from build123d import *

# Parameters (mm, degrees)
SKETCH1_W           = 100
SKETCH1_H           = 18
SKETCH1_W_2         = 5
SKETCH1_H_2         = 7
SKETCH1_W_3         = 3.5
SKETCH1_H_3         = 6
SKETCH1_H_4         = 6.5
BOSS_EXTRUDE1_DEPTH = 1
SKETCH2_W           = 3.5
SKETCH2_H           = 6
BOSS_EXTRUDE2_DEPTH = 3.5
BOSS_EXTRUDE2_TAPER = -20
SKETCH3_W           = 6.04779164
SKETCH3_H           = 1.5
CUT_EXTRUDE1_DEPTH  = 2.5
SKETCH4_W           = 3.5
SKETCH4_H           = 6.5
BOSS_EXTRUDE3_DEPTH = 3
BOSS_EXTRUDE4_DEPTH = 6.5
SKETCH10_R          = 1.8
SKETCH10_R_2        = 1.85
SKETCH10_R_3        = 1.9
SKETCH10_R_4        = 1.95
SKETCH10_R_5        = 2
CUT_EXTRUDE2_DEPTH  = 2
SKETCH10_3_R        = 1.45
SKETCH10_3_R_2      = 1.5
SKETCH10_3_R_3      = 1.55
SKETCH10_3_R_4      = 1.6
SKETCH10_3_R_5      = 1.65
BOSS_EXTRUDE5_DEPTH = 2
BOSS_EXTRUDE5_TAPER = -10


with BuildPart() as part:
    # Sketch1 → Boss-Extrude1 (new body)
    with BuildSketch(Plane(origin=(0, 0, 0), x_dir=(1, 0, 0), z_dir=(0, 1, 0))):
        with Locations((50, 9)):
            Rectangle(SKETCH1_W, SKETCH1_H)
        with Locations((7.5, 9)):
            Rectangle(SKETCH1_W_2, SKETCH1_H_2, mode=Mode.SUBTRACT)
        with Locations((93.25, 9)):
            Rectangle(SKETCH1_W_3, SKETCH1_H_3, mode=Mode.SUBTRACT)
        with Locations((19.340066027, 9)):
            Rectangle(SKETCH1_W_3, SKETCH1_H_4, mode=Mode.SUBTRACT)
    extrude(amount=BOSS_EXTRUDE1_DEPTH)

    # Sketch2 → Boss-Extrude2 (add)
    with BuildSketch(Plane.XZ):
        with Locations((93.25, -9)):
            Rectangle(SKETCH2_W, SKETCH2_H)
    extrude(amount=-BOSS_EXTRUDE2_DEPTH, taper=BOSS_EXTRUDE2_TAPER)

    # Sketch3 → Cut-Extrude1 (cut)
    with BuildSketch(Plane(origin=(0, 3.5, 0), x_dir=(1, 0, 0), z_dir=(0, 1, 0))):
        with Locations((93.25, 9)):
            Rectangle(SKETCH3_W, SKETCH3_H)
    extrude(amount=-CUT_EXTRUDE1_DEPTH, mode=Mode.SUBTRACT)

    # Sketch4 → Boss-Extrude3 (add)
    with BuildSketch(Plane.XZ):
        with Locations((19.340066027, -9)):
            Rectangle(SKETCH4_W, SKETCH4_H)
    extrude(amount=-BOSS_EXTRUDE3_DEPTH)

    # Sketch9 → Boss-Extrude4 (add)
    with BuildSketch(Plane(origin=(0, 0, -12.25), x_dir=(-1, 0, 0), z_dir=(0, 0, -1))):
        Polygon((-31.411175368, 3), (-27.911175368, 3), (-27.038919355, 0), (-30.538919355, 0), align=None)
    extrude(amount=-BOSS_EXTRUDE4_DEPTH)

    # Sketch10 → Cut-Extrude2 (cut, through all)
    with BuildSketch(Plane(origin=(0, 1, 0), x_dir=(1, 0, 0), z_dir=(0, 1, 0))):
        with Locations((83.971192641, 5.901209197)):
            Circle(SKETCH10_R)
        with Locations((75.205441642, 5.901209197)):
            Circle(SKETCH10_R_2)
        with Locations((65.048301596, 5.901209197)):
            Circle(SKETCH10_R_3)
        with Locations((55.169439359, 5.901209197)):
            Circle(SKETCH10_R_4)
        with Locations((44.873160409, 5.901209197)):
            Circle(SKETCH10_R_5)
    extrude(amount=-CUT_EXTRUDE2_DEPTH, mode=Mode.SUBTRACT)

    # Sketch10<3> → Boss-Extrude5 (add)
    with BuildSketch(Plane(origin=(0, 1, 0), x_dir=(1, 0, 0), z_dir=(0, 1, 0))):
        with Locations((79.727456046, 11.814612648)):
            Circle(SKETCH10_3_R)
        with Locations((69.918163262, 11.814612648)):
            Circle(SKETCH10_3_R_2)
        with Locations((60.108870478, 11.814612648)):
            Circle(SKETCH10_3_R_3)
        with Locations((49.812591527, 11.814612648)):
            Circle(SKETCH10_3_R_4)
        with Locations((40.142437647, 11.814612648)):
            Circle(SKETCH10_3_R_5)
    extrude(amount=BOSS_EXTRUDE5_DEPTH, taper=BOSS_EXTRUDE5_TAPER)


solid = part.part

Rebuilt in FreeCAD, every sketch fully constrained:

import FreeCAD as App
import Part
import Sketcher
from FreeCAD import Vector
Q = App.Units.Quantity


def add_polygon(sketch, points):
    """Adds a closed chain of lines whose ends are joined by coincident constraints."""
    first, n = sketch.GeometryCount, len(points)
    for a, b in zip(points, points[1:] + points[:1]):
        sketch.addGeometry(Part.LineSegment(App.Vector(*a, 0), App.Vector(*b, 0)), False)
    for i in range(n):
        sketch.addConstraint(Sketcher.Constraint("Coincident", first + i, 2, first + (i + 1) % n, 1))

doc = App.newDocument("Part")
params = doc.addObject("Spreadsheet::Sheet", "Params")
for row, (alias, value) in enumerate([
    ("sketch1_width", "100 mm"),
    ("sketch1_width2", "5 mm"),
    ("sketch1_height", "18 mm"),
    ("sketch1_height2", "7 mm"),
    ("sketch1_height3", "6 mm"),
    ("pad1_length", "1 mm"),
    ("sketch2_height", "6 mm"),
    ("sketch2_width", "3.5 mm"),
    ("pad2_length", "3.5 mm"),
    ("pad2_taper", "20 deg"),
    ("sketch3_height", "1.5 mm"),
    ("pocket1_length", "2.5 mm"),
    ("sketch4_width", "3.5 mm"),
    ("sketch4_height", "6.5 mm"),
    ("pad3_length", "3 mm"),
    ("sketch5_width", "3.5 mm"),
    ("pad4_length", "6.5 mm"),
    ("sketch6_diameter", "4 mm"),
    ("sketch6_diameter2", "3.6 mm"),
    ("sketch6_diameter3", "3.7 mm"),
    ("sketch6_diameter4", "3.8 mm"),
    ("sketch6_diameter5", "3.9 mm"),
    ("sketch7_diameter", "3 mm"),
    ("sketch7_diameter2", "2.9 mm"),
    ("sketch7_diameter3", "3.1 mm"),
    ("sketch7_diameter4", "3.2 mm"),
    ("sketch7_diameter5", "3.3 mm"),
    ("pad5_length", "2 mm"),
    ("pad5_taper", "10 deg"),
], start=1):
    params.set(f"A{row}", alias)
    params.set(f"B{row}", "=" + value)
    params.setAlias(f"B{row}", alias)

body = doc.addObject("PartDesign::Body", "Body")

sketch1 = body.newObject("Sketcher::SketchObject", "Sketch")
sketch1.AttachmentSupport = (doc.getObject("XZ_Plane"), [""])
sketch1.MapMode = "FlatFace"
add_polygon(sketch1, [(0, -18), (0, 0), (100, 0), (100, -18)])
add_polygon(sketch1, [(10, -5.5), (5, -5.5), (5, -12.5), (10, -12.5)])
add_polygon(sketch1, [(21.090066, -5.75), (17.590066, -5.75), (17.590066, -12.25), (21.090066, -12.25)])
add_polygon(sketch1, [(95, -6), (91.5, -6), (91.5, -12), (95, -12)])
sketch1.addConstraint(Sketcher.Constraint("Vertical", 0))
sketch1.addConstraint(Sketcher.Constraint("Horizontal", 1))
sketch1.addConstraint(Sketcher.Constraint("Vertical", 2))
sketch1.addConstraint(Sketcher.Constraint("Horizontal", 3))
sketch1.addConstraint(Sketcher.Constraint("Horizontal", 4))
sketch1.addConstraint(Sketcher.Constraint("Vertical", 5))
sketch1.addConstraint(Sketcher.Constraint("Horizontal", 6))
sketch1.addConstraint(Sketcher.Constraint("Vertical", 7))
sketch1.addConstraint(Sketcher.Constraint("Horizontal", 8))
sketch1.addConstraint(Sketcher.Constraint("Vertical", 9))
sketch1.addConstraint(Sketcher.Constraint("Horizontal", 10))
sketch1.addConstraint(Sketcher.Constraint("Vertical", 11))
sketch1.addConstraint(Sketcher.Constraint("Horizontal", 12))
sketch1.addConstraint(Sketcher.Constraint("Vertical", 13))
sketch1.addConstraint(Sketcher.Constraint("Horizontal", 14))
sketch1.addConstraint(Sketcher.Constraint("Vertical", 15))
sketch1.addConstraint(Sketcher.Constraint("Coincident", 0, 2, -1, 1))
sketch1.addConstraint(Sketcher.Constraint("Equal", 10, 12))
sketch1.addConstraint(Sketcher.Constraint("DistanceX", 1, 1, 1, 2, Q("100 mm")))
sketch1.addConstraint(Sketcher.Constraint("DistanceX", 4, 2, 4, 1, Q("5 mm")))
sketch1.addConstraint(Sketcher.Constraint("DistanceY", 0, 1, 0, 2, Q("18 mm")))
sketch1.addConstraint(Sketcher.Constraint("DistanceY", 5, 2, 5, 1, Q("7 mm")))
sketch1.addConstraint(Sketcher.Constraint("DistanceY", 13, 2, 13, 1, Q("6 mm")))
sketch1.addConstraint(Sketcher.Constraint("DistanceX", 8, 2, 8, 1, Q("3.5 mm")))
sketch1.addConstraint(Sketcher.Constraint("DistanceY", 9, 2, 9, 1, Q("6.5 mm")))
sketch1.addConstraint(Sketcher.Constraint("DistanceX", -1, 1, 4, 2, Q("5 mm")))
sketch1.addConstraint(Sketcher.Constraint("DistanceY", 12, 2, -1, 1, Q("6 mm")))
sketch1.addConstraint(Sketcher.Constraint("DistanceX", -1, 1, 14, 2, Q("95 mm")))
sketch1.addConstraint(Sketcher.Constraint("DistanceY", 4, 2, -1, 1, Q("5.5 mm")))
sketch1.addConstraint(Sketcher.Constraint("DistanceY", 8, 2, -1, 1, Q("5.75 mm")))
sketch1.addConstraint(Sketcher.Constraint("DistanceX", -1, 1, 8, 2, Q("17.590066 mm")))
sketch1.setExpression("Constraints[34]", "Params.sketch1_width")
sketch1.setExpression("Constraints[35]", "Params.sketch1_width2")
sketch1.setExpression("Constraints[36]", "Params.sketch1_height")
sketch1.setExpression("Constraints[37]", "Params.sketch1_height2")
sketch1.setExpression("Constraints[38]", "Params.sketch1_height3")
pad1 = body.newObject("PartDesign::Pad", "Pad")
pad1.Profile = sketch1
pad1.setExpression("Length", "Params.pad1_length")
pad1.Reversed = True

sketch2 = body.newObject("Sketcher::SketchObject", "Sketch001")
sketch2.AttachmentSupport = (doc.getObject("XZ_Plane"), [""])
sketch2.MapMode = "FlatFace"
add_polygon(sketch2, [(91.5, -6), (91.5, -12), (95, -12), (95, -6)])
sketch2.addConstraint(Sketcher.Constraint("Vertical", 0))
sketch2.addConstraint(Sketcher.Constraint("Horizontal", 1))
sketch2.addConstraint(Sketcher.Constraint("Vertical", 2))
sketch2.addConstraint(Sketcher.Constraint("Horizontal", 3))
sketch2.addConstraint(Sketcher.Constraint("DistanceY", 0, 2, 0, 1, Q("6 mm")))
sketch2.addConstraint(Sketcher.Constraint("DistanceX", 1, 1, 1, 2, Q("3.5 mm")))
sketch2.addConstraint(Sketcher.Constraint("DistanceY", 0, 2, -1, 1, Q("12 mm")))
sketch2.addConstraint(Sketcher.Constraint("DistanceX", -1, 1, 1, 2, Q("95 mm")))
sketch2.setExpression("Constraints[8]", "Params.sketch2_height")
sketch2.setExpression("Constraints[9]", "Params.sketch2_width")
pad2 = body.newObject("PartDesign::Pad", "Pad001")
pad2.Profile = sketch2
pad2.setExpression("Length", "Params.pad2_length")
pad2.Reversed = True
pad2.setExpression("TaperAngle", "Params.pad2_taper")

sketch3 = body.newObject("Sketcher::SketchObject", "Sketch002")
sketch3.AttachmentSupport = (doc.getObject("XZ_Plane"), [""])
sketch3.MapMode = "FlatFace"
sketch3.AttachmentOffset = App.Placement(Vector(0, 0, -3.5), App.Rotation())
add_polygon(sketch3, [(90.226104, -9.75), (90.226104, -8.25), (96.273896, -8.25), (96.273896, -9.75)])
sketch3.addConstraint(Sketcher.Constraint("Vertical", 0))
sketch3.addConstraint(Sketcher.Constraint("Horizontal", 1))
sketch3.addConstraint(Sketcher.Constraint("Vertical", 2))
sketch3.addConstraint(Sketcher.Constraint("Horizontal", 3))
sketch3.addConstraint(Sketcher.Constraint("DistanceY", 0, 1, 0, 2, Q("1.5 mm")))
sketch3.addConstraint(Sketcher.Constraint("DistanceY", 0, 2, -1, 1, Q("8.25 mm")))
sketch3.addConstraint(Sketcher.Constraint("DistanceX", 1, 1, 1, 2, Q("6.047792 mm")))
sketch3.addConstraint(Sketcher.Constraint("DistanceX", -1, 1, 0, 2, Q("90.226104 mm")))
sketch3.setExpression("Constraints[8]", "Params.sketch3_height")
pocket1 = body.newObject("PartDesign::Pocket", "Pocket")
pocket1.Profile = sketch3
pocket1.setExpression("Length", "Params.pocket1_length")
pocket1.Reversed = True

sketch4 = body.newObject("Sketcher::SketchObject", "Sketch003")
sketch4.AttachmentSupport = (doc.getObject("XZ_Plane"), [""])
sketch4.MapMode = "FlatFace"
add_polygon(sketch4, [(17.590066, -5.75), (17.590066, -12.25), (21.090066, -12.25), (21.090066, -5.75)])
sketch4.addConstraint(Sketcher.Constraint("Vertical", 0))
sketch4.addConstraint(Sketcher.Constraint("Horizontal", 1))
sketch4.addConstraint(Sketcher.Constraint("Vertical", 2))
sketch4.addConstraint(Sketcher.Constraint("Horizontal", 3))
sketch4.addConstraint(Sketcher.Constraint("DistanceX", 1, 1, 1, 2, Q("3.5 mm")))
sketch4.addConstraint(Sketcher.Constraint("DistanceY", 0, 2, 0, 1, Q("6.5 mm")))
sketch4.addConstraint(Sketcher.Constraint("DistanceY", 0, 2, -1, 1, Q("12.25 mm")))
sketch4.addConstraint(Sketcher.Constraint("DistanceX", -1, 1, 0, 2, Q("17.590066 mm")))
sketch4.setExpression("Constraints[8]", "Params.sketch4_width")
sketch4.setExpression("Constraints[9]", "Params.sketch4_height")
pad3 = body.newObject("PartDesign::Pad", "Pad002")
pad3.Profile = sketch4
pad3.setExpression("Length", "Params.pad3_length")
pad3.Reversed = True

sketch5 = body.newObject("Sketcher::SketchObject", "Sketch004")
sketch5.AttachmentSupport = (doc.getObject("XY_Plane"), [""])
sketch5.MapMode = "FlatFace"
sketch5.AttachmentOffset = App.Placement(Vector(0, 0, -12.25), App.Rotation())
add_polygon(sketch5, [(27.911175, 3), (31.411175, 3), (30.538919, 0), (27.038919, 0)])
sketch5.addConstraint(Sketcher.Constraint("Horizontal", 0))
sketch5.addConstraint(Sketcher.Constraint("Horizontal", 2))
sketch5.addConstraint(Sketcher.Constraint("PointOnObject", 1, 2, -1))
sketch5.addConstraint(Sketcher.Constraint("Parallel", 1, 3))
sketch5.addConstraint(Sketcher.Constraint("DistanceX", 0, 1, 0, 2, Q("3.5 mm")))
sketch5.addConstraint(Sketcher.Constraint("DistanceY", -1, 1, 0, 2, Q("3 mm")))
sketch5.addConstraint(Sketcher.Constraint("DistanceX", -1, 1, 1, 2, Q("30.538919 mm")))
sketch5.addConstraint(Sketcher.Constraint("Distance", 1, Q("3.124233 mm")))
sketch5.setExpression("Constraints[8]", "Params.sketch5_width")
pad4 = body.newObject("PartDesign::Pad", "Pad003")
pad4.Profile = sketch5
pad4.setExpression("Length", "Params.pad4_length")

sketch6 = body.newObject("Sketcher::SketchObject", "Sketch005")
sketch6.AttachmentSupport = (doc.getObject("XZ_Plane"), [""])
sketch6.MapMode = "FlatFace"
sketch6.AttachmentOffset = App.Placement(Vector(0, 0, -1), App.Rotation())
sketch6.addGeometry(Part.Circle(Vector(83.971193, -5.901209, 0), Vector(0, 0, 1), 1.8), False)
sketch6.addGeometry(Part.Circle(Vector(75.205442, -5.901209, 0), Vector(0, 0, 1), 1.85), False)
sketch6.addGeometry(Part.Circle(Vector(65.048302, -5.901209, 0), Vector(0, 0, 1), 1.9), False)
sketch6.addGeometry(Part.Circle(Vector(55.169439, -5.901209, 0), Vector(0, 0, 1), 1.95), False)
sketch6.addGeometry(Part.Circle(Vector(44.87316, -5.901209, 0), Vector(0, 0, 1), 2), False)
sketch6.addConstraint(Sketcher.Constraint("Horizontal", 0, 3, 1, 3))
sketch6.addConstraint(Sketcher.Constraint("Horizontal", 1, 3, 2, 3))
sketch6.addConstraint(Sketcher.Constraint("Horizontal", 2, 3, 3, 3))
sketch6.addConstraint(Sketcher.Constraint("Horizontal", 3, 3, 4, 3))
sketch6.addConstraint(Sketcher.Constraint("Diameter", 4, Q("4 mm")))
sketch6.addConstraint(Sketcher.Constraint("Diameter", 0, Q("3.6 mm")))
sketch6.addConstraint(Sketcher.Constraint("Diameter", 1, Q("3.7 mm")))
sketch6.addConstraint(Sketcher.Constraint("Diameter", 2, Q("3.8 mm")))
sketch6.addConstraint(Sketcher.Constraint("Diameter", 3, Q("3.9 mm")))
sketch6.addConstraint(Sketcher.Constraint("DistanceX", -1, 1, 2, 3, Q("65.048302 mm")))
sketch6.addConstraint(Sketcher.Constraint("DistanceY", 0, 3, -1, 1, Q("5.901209 mm")))
sketch6.addConstraint(Sketcher.Constraint("DistanceX", -1, 1, 1, 3, Q("75.205442 mm")))
sketch6.addConstraint(Sketcher.Constraint("DistanceX", -1, 1, 3, 3, Q("55.169439 mm")))
sketch6.addConstraint(Sketcher.Constraint("DistanceX", -1, 1, 4, 3, Q("44.87316 mm")))
sketch6.addConstraint(Sketcher.Constraint("DistanceX", 1, 3, 0, 3, Q("8.765751 mm")))
sketch6.setExpression("Constraints[4]", "Params.sketch6_diameter")
sketch6.setExpression("Constraints[5]", "Params.sketch6_diameter2")
sketch6.setExpression("Constraints[6]", "Params.sketch6_diameter3")
sketch6.setExpression("Constraints[7]", "Params.sketch6_diameter4")
sketch6.setExpression("Constraints[8]", "Params.sketch6_diameter5")
pocket2 = body.newObject("PartDesign::Pocket", "Pocket001")
pocket2.Profile = sketch6
pocket2.Type = "ThroughAll"
pocket2.Reversed = True

sketch7 = body.newObject("Sketcher::SketchObject", "Sketch006")
sketch7.AttachmentSupport = (doc.getObject("XZ_Plane"), [""])
sketch7.MapMode = "FlatFace"
sketch7.AttachmentOffset = App.Placement(Vector(0, 0, -1), App.Rotation())
sketch7.addGeometry(Part.Circle(Vector(79.727456, -11.814613, 0), Vector(0, 0, 1), 1.45), False)
sketch7.addGeometry(Part.Circle(Vector(69.918163, -11.814613, 0), Vector(0, 0, 1), 1.5), False)
sketch7.addGeometry(Part.Circle(Vector(60.10887, -11.814613, 0), Vector(0, 0, 1), 1.55), False)
sketch7.addGeometry(Part.Circle(Vector(49.812592, -11.814613, 0), Vector(0, 0, 1), 1.6), False)
sketch7.addGeometry(Part.Circle(Vector(40.142438, -11.814613, 0), Vector(0, 0, 1), 1.65), False)
sketch7.addConstraint(Sketcher.Constraint("Horizontal", 0, 3, 1, 3))
sketch7.addConstraint(Sketcher.Constraint("Horizontal", 1, 3, 2, 3))
sketch7.addConstraint(Sketcher.Constraint("Horizontal", 2, 3, 3, 3))
sketch7.addConstraint(Sketcher.Constraint("Horizontal", 3, 3, 4, 3))
sketch7.addConstraint(Sketcher.Constraint("Diameter", 1, Q("3 mm")))
sketch7.addConstraint(Sketcher.Constraint("Diameter", 0, Q("2.9 mm")))
sketch7.addConstraint(Sketcher.Constraint("Diameter", 2, Q("3.1 mm")))
sketch7.addConstraint(Sketcher.Constraint("Diameter", 3, Q("3.2 mm")))
sketch7.addConstraint(Sketcher.Constraint("Diameter", 4, Q("3.3 mm")))
sketch7.addConstraint(Sketcher.Constraint("DistanceX", -1, 1, 2, 3, Q("60.10887 mm")))
sketch7.addConstraint(Sketcher.Constraint("DistanceX", -1, 1, 3, 3, Q("49.812592 mm")))
sketch7.addConstraint(Sketcher.Constraint("DistanceX", 3, 3, 1, 3, Q("20.105572 mm")))
sketch7.addConstraint(Sketcher.Constraint("DistanceX", 4, 3, 0, 3, Q("39.585018 mm")))
sketch7.addConstraint(Sketcher.Constraint("DistanceX", -1, 1, 0, 3, Q("79.727456 mm")))
sketch7.addConstraint(Sketcher.Constraint("DistanceY", 0, 3, -1, 1, Q("11.814613 mm")))
sketch7.setExpression("Constraints[4]", "Params.sketch7_diameter")
sketch7.setExpression("Constraints[5]", "Params.sketch7_diameter2")
sketch7.setExpression("Constraints[6]", "Params.sketch7_diameter3")
sketch7.setExpression("Constraints[7]", "Params.sketch7_diameter4")
sketch7.setExpression("Constraints[8]", "Params.sketch7_diameter5")
pad5 = body.newObject("PartDesign::Pad", "Pad004")
pad5.Profile = sketch7
pad5.setExpression("Length", "Params.pad5_length")
pad5.Reversed = True
pad5.setExpression("TaperAngle", "Params.pad5_taper")

doc.recompute()
